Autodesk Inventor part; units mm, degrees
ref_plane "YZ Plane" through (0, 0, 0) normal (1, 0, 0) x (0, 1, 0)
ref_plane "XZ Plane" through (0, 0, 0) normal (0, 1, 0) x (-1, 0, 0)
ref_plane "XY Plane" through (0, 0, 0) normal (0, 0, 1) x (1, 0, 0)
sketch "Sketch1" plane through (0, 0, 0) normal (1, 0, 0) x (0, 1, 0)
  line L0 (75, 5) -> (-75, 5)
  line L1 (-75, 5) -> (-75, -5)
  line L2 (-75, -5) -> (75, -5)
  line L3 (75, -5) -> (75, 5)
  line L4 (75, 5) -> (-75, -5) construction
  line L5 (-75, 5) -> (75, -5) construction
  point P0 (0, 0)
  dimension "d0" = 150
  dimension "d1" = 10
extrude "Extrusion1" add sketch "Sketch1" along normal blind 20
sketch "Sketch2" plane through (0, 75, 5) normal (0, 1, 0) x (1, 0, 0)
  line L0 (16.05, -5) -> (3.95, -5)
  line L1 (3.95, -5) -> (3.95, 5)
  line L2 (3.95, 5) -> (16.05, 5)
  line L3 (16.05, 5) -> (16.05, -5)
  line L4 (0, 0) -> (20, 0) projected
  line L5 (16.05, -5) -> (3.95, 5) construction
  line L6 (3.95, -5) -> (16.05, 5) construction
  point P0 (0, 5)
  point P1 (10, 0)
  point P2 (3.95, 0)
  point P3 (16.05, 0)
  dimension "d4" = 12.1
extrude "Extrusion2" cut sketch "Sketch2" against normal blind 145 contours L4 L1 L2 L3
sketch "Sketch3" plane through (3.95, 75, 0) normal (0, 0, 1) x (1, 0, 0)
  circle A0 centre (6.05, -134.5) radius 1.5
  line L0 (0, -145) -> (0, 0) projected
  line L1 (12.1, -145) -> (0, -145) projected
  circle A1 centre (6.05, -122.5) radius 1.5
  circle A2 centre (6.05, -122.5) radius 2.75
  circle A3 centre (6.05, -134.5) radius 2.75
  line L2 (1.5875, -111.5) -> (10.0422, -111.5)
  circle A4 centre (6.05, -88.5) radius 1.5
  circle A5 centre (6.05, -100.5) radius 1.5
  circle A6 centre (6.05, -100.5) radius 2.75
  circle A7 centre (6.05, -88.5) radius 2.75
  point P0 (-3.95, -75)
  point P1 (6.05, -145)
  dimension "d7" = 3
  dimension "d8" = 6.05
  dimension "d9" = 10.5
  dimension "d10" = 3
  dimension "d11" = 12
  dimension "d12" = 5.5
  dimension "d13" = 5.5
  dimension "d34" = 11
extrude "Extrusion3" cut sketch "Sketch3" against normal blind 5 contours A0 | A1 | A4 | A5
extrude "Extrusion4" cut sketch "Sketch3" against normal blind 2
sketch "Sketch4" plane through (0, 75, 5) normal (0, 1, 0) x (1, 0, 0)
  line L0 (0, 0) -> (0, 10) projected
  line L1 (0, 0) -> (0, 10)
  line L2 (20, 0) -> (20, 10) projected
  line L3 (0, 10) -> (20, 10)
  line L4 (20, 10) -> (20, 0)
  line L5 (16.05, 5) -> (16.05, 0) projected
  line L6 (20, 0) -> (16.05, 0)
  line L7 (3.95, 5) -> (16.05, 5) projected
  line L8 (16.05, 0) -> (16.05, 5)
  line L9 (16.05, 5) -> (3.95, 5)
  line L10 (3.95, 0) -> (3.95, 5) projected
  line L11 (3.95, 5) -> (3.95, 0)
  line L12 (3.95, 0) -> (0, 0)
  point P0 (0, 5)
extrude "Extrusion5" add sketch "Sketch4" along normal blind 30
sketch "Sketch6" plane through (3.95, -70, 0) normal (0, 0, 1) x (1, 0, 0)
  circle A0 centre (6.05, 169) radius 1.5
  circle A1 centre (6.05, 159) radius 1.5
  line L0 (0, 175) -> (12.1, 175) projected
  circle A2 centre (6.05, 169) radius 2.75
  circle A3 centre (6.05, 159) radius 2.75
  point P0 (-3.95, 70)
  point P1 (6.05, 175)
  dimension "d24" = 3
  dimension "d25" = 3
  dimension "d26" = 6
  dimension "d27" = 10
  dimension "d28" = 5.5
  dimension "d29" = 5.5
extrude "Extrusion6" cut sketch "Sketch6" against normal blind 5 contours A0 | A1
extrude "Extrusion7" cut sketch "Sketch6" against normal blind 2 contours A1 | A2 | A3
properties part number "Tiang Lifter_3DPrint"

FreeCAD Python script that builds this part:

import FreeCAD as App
import Part
import Sketcher
from FreeCAD import Vector
Q = App.Units.Quantity

doc = App.newDocument("Part")
params = doc.addObject("Spreadsheet::Sheet", "Params")
for row, (alias, value) in enumerate([
    ("sketch1_width", "150 mm"),
    ("sketch1_height", "10 mm"),
    ("pad1_length", "20 mm"),
    ("sketch2_width", "12.1 mm"),
    ("sketch2_height", "5 mm"),
    ("pocket1_length", "145 mm"),
    ("sketch3_diameter", "3 mm"),
    ("pocket2_length", "5 mm"),
    ("sketch4_diameter", "3 mm"),
    ("sketch4_diameter2", "5.5 mm"),
    ("pocket3_length", "2 mm"),
    ("sketch5_width", "20 mm"),
    ("sketch5_height", "10 mm"),
    ("sketch5_width2", "12.1 mm"),
    ("pad2_length", "30 mm"),
    ("sketch6_diameter", "3 mm"),
    ("pocket4_length", "5 mm"),
    ("sketch7_diameter", "3 mm"),
    ("sketch7_diameter2", "5.5 mm"),
    ("pocket5_length", "2 mm"),
], start=1):
    params.set(f"A{row}", alias)
    params.set(f"B{row}", "=" + value)
    params.setAlias(f"B{row}", alias)

body = doc.addObject("PartDesign::Body", "Body")

# Sketch on YZ plane
sketch1 = doc.addObject("Sketcher::SketchObject", "Sketch")
body.addObject(sketch1)
sketch1.AttachmentSupport = (doc.YZ_Plane, [""])
sketch1.MapMode = "FlatFace"
sketch1.addGeometry(Part.LineSegment(Vector(75, -5, 0), Vector(75, 5, 0)), False)
sketch1.addGeometry(Part.LineSegment(Vector(75, 5, 0), Vector(-75, 5, 0)), False)
sketch1.addGeometry(Part.LineSegment(Vector(-75, 5, 0), Vector(-75, -5, 0)), False)
sketch1.addGeometry(Part.LineSegment(Vector(-75, -5, 0), Vector(75, -5, 0)), False)
sketch1.addConstraint(Sketcher.Constraint("Coincident", 0, 2, 1, 1))
sketch1.addConstraint(Sketcher.Constraint("Coincident", 1, 2, 2, 1))
sketch1.addConstraint(Sketcher.Constraint("Coincident", 2, 2, 3, 1))
sketch1.addConstraint(Sketcher.Constraint("Coincident", 3, 2, 0, 1))
sketch1.addConstraint(Sketcher.Constraint("Vertical", 0))
sketch1.addConstraint(Sketcher.Constraint("Horizontal", 1))
sketch1.addConstraint(Sketcher.Constraint("Vertical", 2))
sketch1.addConstraint(Sketcher.Constraint("Horizontal", 3))
sketch1.addConstraint(Sketcher.Constraint("Symmetric", 0, 2, 2, 2, -1, 1))
sketch1.addConstraint(Sketcher.Constraint("DistanceX", 1, 2, 1, 1, Q("150 mm")))
sketch1.addConstraint(Sketcher.Constraint("DistanceY", 0, 1, 0, 2, Q("10 mm")))
sketch1.setExpression("Constraints[9]", "Params.sketch1_width")
sketch1.setExpression("Constraints[10]", "Params.sketch1_height")
pad1 = doc.addObject("PartDesign::Pad", "Pad")
body.addObject(pad1)
pad1.Profile = sketch1
pad1.setExpression("Length", "Params.pad1_length")

# Sketch on XZ plane
sketch2 = doc.addObject("Sketcher::SketchObject", "Sketch001")
body.addObject(sketch2)
sketch2.AttachmentSupport = (doc.XZ_Plane, [""])
sketch2.MapMode = "FlatFace"
sketch2.AttachmentOffset = App.Placement(Vector(0, 0, -75), App.Rotation())
sketch2.addGeometry(Part.LineSegment(Vector(4, 5, 0), Vector(16, 5, 0)), False)
sketch2.addGeometry(Part.LineSegment(Vector(16, 5, 0), Vector(16, 0, 0)), False)
sketch2.addGeometry(Part.LineSegment(Vector(16, 0, 0), Vector(4, 0, 0)), False)
sketch2.addGeometry(Part.LineSegment(Vector(4, 0, 0), Vector(4, 5, 0)), False)
sketch2.addConstraint(Sketcher.Constraint("Coincident", 0, 2, 1, 1))
sketch2.addConstraint(Sketcher.Constraint("Coincident", 1, 2, 2, 1))
sketch2.addConstraint(Sketcher.Constraint("Coincident", 2, 2, 3, 1))
sketch2.addConstraint(Sketcher.Constraint("Coincident", 3, 2, 0, 1))
sketch2.addConstraint(Sketcher.Constraint("Horizontal", 0))
sketch2.addConstraint(Sketcher.Constraint("Vertical", 1))
sketch2.addConstraint(Sketcher.Constraint("Horizontal", 2))
sketch2.addConstraint(Sketcher.Constraint("Vertical", 3))
sketch2.addConstraint(Sketcher.Constraint("PointOnObject", 1, 2, -1))
sketch2.addConstraint(Sketcher.Constraint("DistanceX", 0, 1, 0, 2, Q("12.1 mm")))
sketch2.addConstraint(Sketcher.Constraint("DistanceY", 1, 2, 1, 1, Q("5 mm")))
sketch2.addConstraint(Sketcher.Constraint("DistanceX", -1, 1, 0, 2, Q("16.05 mm")))
sketch2.setExpression("Constraints[9]", "Params.sketch2_width")
sketch2.setExpression("Constraints[10]", "Params.sketch2_height")
pocket1 = doc.addObject("PartDesign::Pocket", "Pocket")
body.addObject(pocket1)
pocket1.Profile = sketch2
pocket1.setExpression("Length", "Params.pocket1_length")
pocket1.Reversed = True

# Sketch on XY plane
sketch3 = doc.addObject("Sketcher::SketchObject", "Sketch002")
body.addObject(sketch3)
sketch3.AttachmentSupport = (doc.XY_Plane, [""])
sketch3.MapMode = "FlatFace"
sketch3.addGeometry(Part.Circle(Vector(10, -59.5, 0), Vector(0, 0, 1), 1.5), False)
sketch3.addGeometry(Part.Circle(Vector(10, -47.5, 0), Vector(0, 0, 1), 1.5), False)
sketch3.addGeometry(Part.Circle(Vector(10, -13.5, 0), Vector(0, 0, 1), 1.5), False)
sketch3.addGeometry(Part.Circle(Vector(10, -25.5, 0), Vector(0, 0, 1), 1.5), False)
sketch3.addConstraint(Sketcher.Constraint("Equal", 0, 1))
sketch3.addConstraint(Sketcher.Constraint("Equal", 1, 2))
sketch3.addConstraint(Sketcher.Constraint("Equal", 2, 3))
sketch3.addConstraint(Sketcher.Constraint("Vertical", 0, 3, 1, 3))
sketch3.addConstraint(Sketcher.Constraint("Vertical", 1, 3, 2, 3))
sketch3.addConstraint(Sketcher.Constraint("Vertical", 2, 3, 3, 3))
sketch3.addConstraint(Sketcher.Constraint("Diameter", 0, Q("3 mm")))
sketch3.addConstraint(Sketcher.Constraint("DistanceY", 0, 3, 1, 3, Q("12 mm")))
sketch3.addConstraint(Sketcher.Constraint("DistanceY", 3, 3, 2, 3, Q("12 mm")))
sketch3.addConstraint(Sketcher.Constraint("DistanceX", -1, 1, 0, 3, Q("10 mm")))
sketch3.addConstraint(Sketcher.Constraint("DistanceY", 1, 3, 2, 3, Q("34 mm")))
sketch3.addConstraint(Sketcher.Constraint("DistanceY", 0, 3, -1, 1, Q("59.5 mm")))
sketch3.setExpression("Constraints[6]", "Params.sketch3_diameter")
pocket2 = doc.addObject("PartDesign::Pocket", "Pocket001")
body.addObject(pocket2)
pocket2.Profile = sketch3
pocket2.setExpression("Length", "Params.pocket2_length")

# Sketch on XY plane
sketch4 = doc.addObject("Sketcher::SketchObject", "Sketch003")
body.addObject(sketch4)
sketch4.AttachmentSupport = (doc.XY_Plane, [""])
sketch4.MapMode = "FlatFace"
sketch4.addGeometry(Part.Circle(Vector(10, -47.5, 0), Vector(0, 0, 1), 2.8), False)
sketch4.addGeometry(Part.Circle(Vector(10, -47.5, 0), Vector(0, 0, 1), 1.5), False)
sketch4.addGeometry(Part.Circle(Vector(10, -59.5, 0), Vector(0, 0, 1), 2.8), False)
sketch4.addGeometry(Part.Circle(Vector(10, -59.5, 0), Vector(0, 0, 1), 1.5), False)
sketch4.addGeometry(Part.Circle(Vector(10, -25.5, 0), Vector(0, 0, 1), 2.8), False)
sketch4.addGeometry(Part.Circle(Vector(10, -25.5, 0), Vector(0, 0, 1), 1.5), False)
sketch4.addGeometry(Part.Circle(Vector(10, -13.5, 0), Vector(0, 0, 1), 2.8), False)
sketch4.addGeometry(Part.Circle(Vector(10, -13.5, 0), Vector(0, 0, 1), 1.5), False)
sketch4.addConstraint(Sketcher.Constraint("Coincident", 1, 3, 0, 3))
sketch4.addConstraint(Sketcher.Constraint("Coincident", 3, 3, 2, 3))
sketch4.addConstraint(Sketcher.Constraint("Coincident", 5, 3, 4, 3))
sketch4.addConstraint(Sketcher.Constraint("Coincident", 7, 3, 6, 3))
sketch4.addConstraint(Sketcher.Constraint("Equal", 0, 2))
sketch4.addConstraint(Sketcher.Constraint("Equal", 1, 3))
sketch4.addConstraint(Sketcher.Constraint("Equal", 2, 4))
sketch4.addConstraint(Sketcher.Constraint("Equal", 3, 5))
sketch4.addConstraint(Sketcher.Constraint("Equal", 4, 6))
sketch4.addConstraint(Sketcher.Constraint("Equal", 5, 7))
sketch4.addConstraint(Sketcher.Constraint("Vertical", 1, 3, 2, 3))
sketch4.addConstraint(Sketcher.Constraint("Vertical", 3, 3, 4, 3))
sketch4.addConstraint(Sketcher.Constraint("Vertical", 5, 3, 6, 3))
sketch4.addConstraint(Sketcher.Constraint("Diameter", 1, Q("3 mm")))
sketch4.addConstraint(Sketcher.Constraint("Diameter", 0, Q("5.5 mm")))
sketch4.addConstraint(Sketcher.Constraint("DistanceY", 2, 3, 0, 3, Q("12 mm")))
sketch4.addConstraint(Sketcher.Constraint("DistanceY", 4, 3, 6, 3, Q("12 mm")))
sketch4.addConstraint(Sketcher.Constraint("DistanceX", -1, 1, 0, 3, Q("10 mm")))
sketch4.addConstraint(Sketcher.Constraint("DistanceY", 0, 3, 4, 3, Q("22 mm")))
sketch4.addConstraint(Sketcher.Constraint("DistanceY", 0, 3, -1, 1, Q("47.5 mm")))
sketch4.setExpression("Constraints[13]", "Params.sketch4_diameter")
sketch4.setExpression("Constraints[14]", "Params.sketch4_diameter2")
pocket3 = doc.addObject("PartDesign::Pocket", "Pocket002")
body.addObject(pocket3)
pocket3.Profile = sketch4
pocket3.setExpression("Length", "Params.pocket3_length")

# Sketch on XZ plane
sketch5 = doc.addObject("Sketcher::SketchObject", "Sketch004")
body.addObject(sketch5)
sketch5.AttachmentSupport = (doc.XZ_Plane, [""])
sketch5.MapMode = "FlatFace"
sketch5.AttachmentOffset = App.Placement(Vector(0, 0, -75), App.Rotation())
sketch5.addGeometry(Part.LineSegment(Vector(0, -5, 0), Vector(0, 5, 0)), False)
sketch5.addGeometry(Part.LineSegment(Vector(0, 5, 0), Vector(4, 5, 0)), False)
sketch5.addGeometry(Part.LineSegment(Vector(4, 5, 0), Vector(4, 0, 0)), False)
sketch5.addGeometry(Part.LineSegment(Vector(4, 0, 0), Vector(16.1, 0, 0)), False)
sketch5.addGeometry(Part.LineSegment(Vector(16.1, 0, 0), Vector(16.1, 5, 0)), False)
sketch5.addGeometry(Part.LineSegment(Vector(16.1, 5, 0), Vector(20, 5, 0)), False)
sketch5.addGeometry(Part.LineSegment(Vector(20, 5, 0), Vector(20, -5, 0)), False)
sketch5.addGeometry(Part.LineSegment(Vector(20, -5, 0), Vector(0, -5, 0)), False)
sketch5.addConstraint(Sketcher.Constraint("Coincident", 0, 2, 1, 1))
sketch5.addConstraint(Sketcher.Constraint("Coincident", 1, 2, 2, 1))
sketch5.addConstraint(Sketcher.Constraint("Coincident", 2, 2, 3, 1))
sketch5.addConstraint(Sketcher.Constraint("Coincident", 3, 2, 4, 1))
sketch5.addConstraint(Sketcher.Constraint("Coincident", 4, 2, 5, 1))
sketch5.addConstraint(Sketcher.Constraint("Coincident", 5, 2, 6, 1))
sketch5.addConstraint(Sketcher.Constraint("Coincident", 6, 2, 7, 1))
sketch5.addConstraint(Sketcher.Constraint("Coincident", 7, 2, 0, 1))
sketch5.addConstraint(Sketcher.Constraint("Vertical", 0))
sketch5.addConstraint(Sketcher.Constraint("Horizontal", 1))
sketch5.addConstraint(Sketcher.Constraint("Vertical", 2))
sketch5.addConstraint(Sketcher.Constraint("Horizontal", 3))
sketch5.addConstraint(Sketcher.Constraint("Vertical", 4))
sketch5.addConstraint(Sketcher.Constraint("Horizontal", 5))
sketch5.addConstraint(Sketcher.Constraint("Vertical", 6))
sketch5.addConstraint(Sketcher.Constraint("Horizontal", 7))
sketch5.addConstraint(Sketcher.Constraint("Symmetric", 0, 2, 7, 2, -1, 1))
sketch5.addConstraint(Sketcher.Constraint("PointOnObject", 2, 2, -1))
sketch5.addConstraint(Sketcher.Constraint("Horizontal", 1, 2, 4, 2))
sketch5.addConstraint(Sketcher.Constraint("Equal", 1, 5))
sketch5.addConstraint(Sketcher.Constraint("DistanceX", 7, 2, 7, 1, Q("20 mm")))
sketch5.addConstraint(Sketcher.Constraint("DistanceY", 0, 1, 0, 2, Q("10 mm")))
sketch5.addConstraint(Sketcher.Constraint("DistanceX", 3, 1, 3, 2, Q("12.1 mm")))
sketch5.setExpression("Constraints[20]", "Params.sketch5_width")
sketch5.setExpression("Constraints[21]", "Params.sketch5_height")
sketch5.setExpression("Constraints[22]", "Params.sketch5_width2")
pad2 = doc.addObject("PartDesign::Pad", "Pad001")
body.addObject(pad2)
pad2.Profile = sketch5
pad2.setExpression("Length", "Params.pad2_length")
pad2.Reversed = True

# Sketch on XY plane
sketch6 = doc.addObject("Sketcher::SketchObject", "Sketch005")
body.addObject(sketch6)
sketch6.AttachmentSupport = (doc.XY_Plane, [""])
sketch6.MapMode = "FlatFace"
sketch6.addGeometry(Part.Circle(Vector(10, 99, 0), Vector(0, 0, 1), 1.5), False)
sketch6.addGeometry(Part.Circle(Vector(10, 89, 0), Vector(0, 0, 1), 1.5), False)
sketch6.addConstraint(Sketcher.Constraint("Equal", 0, 1))
sketch6.addConstraint(Sketcher.Constraint("Vertical", 0, 3, 1, 3))
sketch6.addConstraint(Sketcher.Constraint("Diameter", 0, Q("3 mm")))
sketch6.addConstraint(Sketcher.Constraint("DistanceX", -1, 1, 0, 3, Q("10 mm")))
sketch6.addConstraint(Sketcher.Constraint("DistanceY", 1, 3, 0, 3, Q("10 mm")))
sketch6.addConstraint(Sketcher.Constraint("DistanceY", -1, 1, 0, 3, Q("99 mm")))
sketch6.setExpression("Constraints[2]", "Params.sketch6_diameter")
pocket4 = doc.addObject("PartDesign::Pocket", "Pocket003")
body.addObject(pocket4)
pocket4.Profile = sketch6
pocket4.setExpression("Length", "Params.pocket4_length")

# Sketch on XY plane
sketch7 = doc.addObject("Sketcher::SketchObject", "Sketch006")
body.addObject(sketch7)
sketch7.AttachmentSupport = (doc.XY_Plane, [""])
sketch7.MapMode = "FlatFace"
sketch7.addGeometry(Part.Circle(Vector(10, 89, 0), Vector(0, 0, 1), 2.8), False)
sketch7.addGeometry(Part.Circle(Vector(10, 99, 0), Vector(0, 0, 1), 2.8), False)
sketch7.addGeometry(Part.Circle(Vector(10, 99, 0), Vector(0, 0, 1), 1.5), False)
sketch7.addConstraint(Sketcher.Constraint("Coincident", 2, 3, 1, 3))
sketch7.addConstraint(Sketcher.Constraint("Equal", 0, 1))
sketch7.addConstraint(Sketcher.Constraint("Vertical", 0, 3, 1, 3))
sketch7.addConstraint(Sketcher.Constraint("Diameter", 2, Q("3 mm")))
sketch7.addConstraint(Sketcher.Constraint("Diameter", 0, Q("5.5 mm")))
sketch7.addConstraint(Sketcher.Constraint("DistanceX", -1, 1, 0, 3, Q("10 mm")))
sketch7.addConstraint(Sketcher.Constraint("DistanceY", 0, 3, 1, 3, Q("10 mm")))
sketch7.addConstraint(Sketcher.Constraint("DistanceY", -1, 1, 0, 3, Q("89 mm")))
sketch7.setExpression("Constraints[3]", "Params.sketch7_diameter")
sketch7.setExpression("Constraints[4]", "Params.sketch7_diameter2")
pocket5 = doc.addObject("PartDesign::Pocket", "Pocket004")
body.addObject(pocket5)
pocket5.Profile = sketch7
pocket5.setExpression("Length", "Params.pocket5_length")

doc.recompute()
